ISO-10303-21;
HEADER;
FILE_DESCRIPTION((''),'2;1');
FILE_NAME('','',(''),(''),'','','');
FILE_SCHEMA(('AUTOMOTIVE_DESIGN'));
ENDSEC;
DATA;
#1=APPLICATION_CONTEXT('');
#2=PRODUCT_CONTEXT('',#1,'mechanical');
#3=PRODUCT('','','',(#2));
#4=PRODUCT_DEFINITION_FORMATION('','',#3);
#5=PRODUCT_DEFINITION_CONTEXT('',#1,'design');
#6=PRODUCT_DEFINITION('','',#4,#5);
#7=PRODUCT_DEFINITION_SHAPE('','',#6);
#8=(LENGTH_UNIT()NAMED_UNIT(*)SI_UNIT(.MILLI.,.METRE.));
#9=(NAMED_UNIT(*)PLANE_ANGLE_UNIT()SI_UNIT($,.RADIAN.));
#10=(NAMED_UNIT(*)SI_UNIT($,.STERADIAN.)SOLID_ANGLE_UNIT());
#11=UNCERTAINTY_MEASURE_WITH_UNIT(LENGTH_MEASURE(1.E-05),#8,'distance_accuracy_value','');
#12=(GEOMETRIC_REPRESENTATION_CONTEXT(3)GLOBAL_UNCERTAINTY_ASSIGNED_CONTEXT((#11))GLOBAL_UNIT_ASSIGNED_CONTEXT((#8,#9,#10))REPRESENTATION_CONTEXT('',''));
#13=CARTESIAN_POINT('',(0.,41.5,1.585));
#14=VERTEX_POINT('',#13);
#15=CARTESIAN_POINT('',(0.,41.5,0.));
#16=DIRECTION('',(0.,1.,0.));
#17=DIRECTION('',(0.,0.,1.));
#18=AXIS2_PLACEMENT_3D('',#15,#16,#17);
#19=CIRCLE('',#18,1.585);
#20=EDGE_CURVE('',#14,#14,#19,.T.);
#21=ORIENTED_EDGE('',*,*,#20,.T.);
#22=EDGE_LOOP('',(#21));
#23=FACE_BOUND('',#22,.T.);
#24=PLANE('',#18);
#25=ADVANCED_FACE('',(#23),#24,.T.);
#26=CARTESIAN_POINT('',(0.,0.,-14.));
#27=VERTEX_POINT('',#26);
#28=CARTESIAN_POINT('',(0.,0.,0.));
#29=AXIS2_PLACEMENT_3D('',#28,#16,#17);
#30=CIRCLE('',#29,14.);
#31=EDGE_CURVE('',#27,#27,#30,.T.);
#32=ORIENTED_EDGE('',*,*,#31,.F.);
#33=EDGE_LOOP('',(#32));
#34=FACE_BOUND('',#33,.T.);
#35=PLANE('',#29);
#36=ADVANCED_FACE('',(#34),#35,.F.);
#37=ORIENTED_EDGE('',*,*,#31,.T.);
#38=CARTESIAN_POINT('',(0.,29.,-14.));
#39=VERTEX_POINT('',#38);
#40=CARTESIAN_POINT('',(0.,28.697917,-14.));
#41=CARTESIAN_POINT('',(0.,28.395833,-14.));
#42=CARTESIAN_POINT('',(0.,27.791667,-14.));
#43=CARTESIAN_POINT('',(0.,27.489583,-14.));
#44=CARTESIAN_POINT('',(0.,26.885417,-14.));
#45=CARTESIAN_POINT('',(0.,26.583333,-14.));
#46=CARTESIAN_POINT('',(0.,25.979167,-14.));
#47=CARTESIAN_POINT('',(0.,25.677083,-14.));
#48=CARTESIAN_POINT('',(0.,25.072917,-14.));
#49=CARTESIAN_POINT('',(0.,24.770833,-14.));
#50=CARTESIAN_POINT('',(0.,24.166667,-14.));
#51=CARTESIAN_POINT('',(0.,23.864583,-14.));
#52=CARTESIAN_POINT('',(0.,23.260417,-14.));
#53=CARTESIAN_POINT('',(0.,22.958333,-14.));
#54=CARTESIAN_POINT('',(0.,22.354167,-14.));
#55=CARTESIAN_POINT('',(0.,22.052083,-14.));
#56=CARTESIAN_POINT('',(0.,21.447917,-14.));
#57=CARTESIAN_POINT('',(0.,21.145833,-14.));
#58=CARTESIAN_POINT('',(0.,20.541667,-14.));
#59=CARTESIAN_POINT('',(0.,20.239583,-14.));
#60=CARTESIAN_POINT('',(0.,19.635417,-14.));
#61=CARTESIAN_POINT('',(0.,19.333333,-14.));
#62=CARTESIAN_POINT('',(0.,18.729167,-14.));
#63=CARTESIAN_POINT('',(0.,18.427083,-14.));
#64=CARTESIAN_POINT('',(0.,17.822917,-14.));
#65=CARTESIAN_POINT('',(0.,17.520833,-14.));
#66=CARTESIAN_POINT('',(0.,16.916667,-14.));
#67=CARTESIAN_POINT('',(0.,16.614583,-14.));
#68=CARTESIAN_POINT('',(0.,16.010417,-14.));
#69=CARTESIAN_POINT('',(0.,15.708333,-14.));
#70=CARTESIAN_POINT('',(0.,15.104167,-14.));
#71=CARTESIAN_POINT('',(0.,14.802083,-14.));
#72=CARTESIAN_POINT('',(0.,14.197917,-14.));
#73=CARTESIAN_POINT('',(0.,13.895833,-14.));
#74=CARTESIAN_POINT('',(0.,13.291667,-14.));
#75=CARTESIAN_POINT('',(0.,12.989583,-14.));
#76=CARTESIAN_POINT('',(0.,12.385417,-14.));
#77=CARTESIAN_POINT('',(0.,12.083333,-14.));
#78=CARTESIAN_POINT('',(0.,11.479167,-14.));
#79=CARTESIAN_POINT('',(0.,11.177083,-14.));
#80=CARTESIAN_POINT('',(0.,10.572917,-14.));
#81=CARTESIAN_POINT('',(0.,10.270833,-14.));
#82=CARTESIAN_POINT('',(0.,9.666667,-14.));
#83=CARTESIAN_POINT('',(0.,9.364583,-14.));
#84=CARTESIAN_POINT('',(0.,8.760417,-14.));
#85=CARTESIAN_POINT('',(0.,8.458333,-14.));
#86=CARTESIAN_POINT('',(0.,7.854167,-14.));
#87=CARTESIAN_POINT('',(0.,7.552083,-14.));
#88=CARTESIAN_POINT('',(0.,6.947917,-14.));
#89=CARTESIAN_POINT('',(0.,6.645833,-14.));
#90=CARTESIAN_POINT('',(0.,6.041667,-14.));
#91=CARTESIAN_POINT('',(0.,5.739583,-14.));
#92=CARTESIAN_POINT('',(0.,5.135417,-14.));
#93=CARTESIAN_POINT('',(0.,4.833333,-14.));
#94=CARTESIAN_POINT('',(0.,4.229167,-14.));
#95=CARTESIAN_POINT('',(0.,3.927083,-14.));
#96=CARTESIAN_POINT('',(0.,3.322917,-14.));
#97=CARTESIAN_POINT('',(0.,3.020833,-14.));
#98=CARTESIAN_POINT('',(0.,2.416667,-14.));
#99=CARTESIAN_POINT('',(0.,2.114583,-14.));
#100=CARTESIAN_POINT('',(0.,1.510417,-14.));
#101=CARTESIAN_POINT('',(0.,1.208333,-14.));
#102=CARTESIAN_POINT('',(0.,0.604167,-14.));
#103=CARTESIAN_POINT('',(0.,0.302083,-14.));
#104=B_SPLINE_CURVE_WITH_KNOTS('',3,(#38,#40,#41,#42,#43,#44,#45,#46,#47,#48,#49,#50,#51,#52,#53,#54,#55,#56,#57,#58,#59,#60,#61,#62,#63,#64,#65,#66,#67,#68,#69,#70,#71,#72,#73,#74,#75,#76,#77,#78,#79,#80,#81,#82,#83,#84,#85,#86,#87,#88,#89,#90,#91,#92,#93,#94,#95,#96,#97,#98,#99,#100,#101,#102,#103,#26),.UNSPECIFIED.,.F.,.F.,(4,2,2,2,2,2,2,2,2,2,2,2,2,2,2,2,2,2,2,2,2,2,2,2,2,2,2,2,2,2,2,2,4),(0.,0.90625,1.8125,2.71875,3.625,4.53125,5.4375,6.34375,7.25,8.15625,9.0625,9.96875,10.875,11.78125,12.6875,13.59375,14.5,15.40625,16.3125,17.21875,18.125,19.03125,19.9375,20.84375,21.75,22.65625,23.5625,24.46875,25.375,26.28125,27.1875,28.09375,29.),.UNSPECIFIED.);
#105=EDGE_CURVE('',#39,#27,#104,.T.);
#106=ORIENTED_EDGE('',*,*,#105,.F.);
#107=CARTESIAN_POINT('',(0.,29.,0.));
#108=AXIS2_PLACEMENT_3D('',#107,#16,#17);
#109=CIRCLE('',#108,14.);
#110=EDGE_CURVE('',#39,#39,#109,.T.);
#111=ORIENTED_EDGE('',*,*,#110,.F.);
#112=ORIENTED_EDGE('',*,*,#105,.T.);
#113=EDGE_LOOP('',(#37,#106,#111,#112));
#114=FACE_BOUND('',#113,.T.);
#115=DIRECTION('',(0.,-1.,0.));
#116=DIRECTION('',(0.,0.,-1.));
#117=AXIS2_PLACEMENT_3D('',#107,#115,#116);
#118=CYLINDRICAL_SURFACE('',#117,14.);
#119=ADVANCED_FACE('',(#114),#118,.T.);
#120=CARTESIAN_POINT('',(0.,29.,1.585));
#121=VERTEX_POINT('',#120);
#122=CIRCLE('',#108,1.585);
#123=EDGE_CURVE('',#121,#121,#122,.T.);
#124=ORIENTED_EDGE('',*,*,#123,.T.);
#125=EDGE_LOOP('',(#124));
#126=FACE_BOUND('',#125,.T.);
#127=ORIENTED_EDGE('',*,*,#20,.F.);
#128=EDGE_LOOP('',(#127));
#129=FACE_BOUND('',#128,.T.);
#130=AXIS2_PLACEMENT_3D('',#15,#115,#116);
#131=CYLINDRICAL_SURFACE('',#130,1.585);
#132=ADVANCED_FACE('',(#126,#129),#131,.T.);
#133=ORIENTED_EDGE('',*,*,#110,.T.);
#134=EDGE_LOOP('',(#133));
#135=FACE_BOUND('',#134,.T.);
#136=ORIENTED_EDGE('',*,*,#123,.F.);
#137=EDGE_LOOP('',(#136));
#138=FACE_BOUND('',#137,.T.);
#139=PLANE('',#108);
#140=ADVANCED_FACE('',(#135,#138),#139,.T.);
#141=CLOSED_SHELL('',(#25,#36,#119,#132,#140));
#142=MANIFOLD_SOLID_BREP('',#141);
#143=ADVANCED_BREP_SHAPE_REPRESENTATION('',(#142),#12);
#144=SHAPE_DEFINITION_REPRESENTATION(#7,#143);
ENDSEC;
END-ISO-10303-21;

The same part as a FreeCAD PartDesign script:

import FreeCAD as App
import Part
import Sketcher
from FreeCAD import Vector

doc = App.newDocument("Part")
body = doc.addObject("PartDesign::Body", "Body")

sketch1 = body.newObject("Sketcher::SketchObject", "Sketch")
sketch1.AttachmentSupport = (doc.getObject("XZ_Plane"), [""])
sketch1.MapMode = "FlatFace"
sketch1.addGeometry(Part.Circle(Vector(0, 0, 0), Vector(0, 0, 1), 14), False)
sketch1.addConstraint(Sketcher.Constraint("Coincident", 0, 3, -1, 1))
sketch1.addConstraint(Sketcher.Constraint("Diameter", 0, 28.0))
pad1 = body.newObject("PartDesign::Pad", "Pad")
pad1.Profile = sketch1
pad1.Length = 29
pad1.Reversed = True

sketch2 = body.newObject("Sketcher::SketchObject", "Sketch001")
sketch2.AttachmentSupport = (doc.getObject("XZ_Plane"), [""])
sketch2.MapMode = "FlatFace"
sketch2.AttachmentOffset = App.Placement(Vector(0, 0, -29), App.Rotation())
sketch2.addGeometry(Part.Circle(Vector(0, 0, 0), Vector(0, 0, 1), 1.6), False)
sketch2.addConstraint(Sketcher.Constraint("Coincident", 0, 3, -1, 1))
sketch2.addConstraint(Sketcher.Constraint("Diameter", 0, 3.17))
pad2 = body.newObject("PartDesign::Pad", "Pad001")
pad2.Profile = sketch2
pad2.Length = 12.5
pad2.Reversed = True

doc.recompute()
